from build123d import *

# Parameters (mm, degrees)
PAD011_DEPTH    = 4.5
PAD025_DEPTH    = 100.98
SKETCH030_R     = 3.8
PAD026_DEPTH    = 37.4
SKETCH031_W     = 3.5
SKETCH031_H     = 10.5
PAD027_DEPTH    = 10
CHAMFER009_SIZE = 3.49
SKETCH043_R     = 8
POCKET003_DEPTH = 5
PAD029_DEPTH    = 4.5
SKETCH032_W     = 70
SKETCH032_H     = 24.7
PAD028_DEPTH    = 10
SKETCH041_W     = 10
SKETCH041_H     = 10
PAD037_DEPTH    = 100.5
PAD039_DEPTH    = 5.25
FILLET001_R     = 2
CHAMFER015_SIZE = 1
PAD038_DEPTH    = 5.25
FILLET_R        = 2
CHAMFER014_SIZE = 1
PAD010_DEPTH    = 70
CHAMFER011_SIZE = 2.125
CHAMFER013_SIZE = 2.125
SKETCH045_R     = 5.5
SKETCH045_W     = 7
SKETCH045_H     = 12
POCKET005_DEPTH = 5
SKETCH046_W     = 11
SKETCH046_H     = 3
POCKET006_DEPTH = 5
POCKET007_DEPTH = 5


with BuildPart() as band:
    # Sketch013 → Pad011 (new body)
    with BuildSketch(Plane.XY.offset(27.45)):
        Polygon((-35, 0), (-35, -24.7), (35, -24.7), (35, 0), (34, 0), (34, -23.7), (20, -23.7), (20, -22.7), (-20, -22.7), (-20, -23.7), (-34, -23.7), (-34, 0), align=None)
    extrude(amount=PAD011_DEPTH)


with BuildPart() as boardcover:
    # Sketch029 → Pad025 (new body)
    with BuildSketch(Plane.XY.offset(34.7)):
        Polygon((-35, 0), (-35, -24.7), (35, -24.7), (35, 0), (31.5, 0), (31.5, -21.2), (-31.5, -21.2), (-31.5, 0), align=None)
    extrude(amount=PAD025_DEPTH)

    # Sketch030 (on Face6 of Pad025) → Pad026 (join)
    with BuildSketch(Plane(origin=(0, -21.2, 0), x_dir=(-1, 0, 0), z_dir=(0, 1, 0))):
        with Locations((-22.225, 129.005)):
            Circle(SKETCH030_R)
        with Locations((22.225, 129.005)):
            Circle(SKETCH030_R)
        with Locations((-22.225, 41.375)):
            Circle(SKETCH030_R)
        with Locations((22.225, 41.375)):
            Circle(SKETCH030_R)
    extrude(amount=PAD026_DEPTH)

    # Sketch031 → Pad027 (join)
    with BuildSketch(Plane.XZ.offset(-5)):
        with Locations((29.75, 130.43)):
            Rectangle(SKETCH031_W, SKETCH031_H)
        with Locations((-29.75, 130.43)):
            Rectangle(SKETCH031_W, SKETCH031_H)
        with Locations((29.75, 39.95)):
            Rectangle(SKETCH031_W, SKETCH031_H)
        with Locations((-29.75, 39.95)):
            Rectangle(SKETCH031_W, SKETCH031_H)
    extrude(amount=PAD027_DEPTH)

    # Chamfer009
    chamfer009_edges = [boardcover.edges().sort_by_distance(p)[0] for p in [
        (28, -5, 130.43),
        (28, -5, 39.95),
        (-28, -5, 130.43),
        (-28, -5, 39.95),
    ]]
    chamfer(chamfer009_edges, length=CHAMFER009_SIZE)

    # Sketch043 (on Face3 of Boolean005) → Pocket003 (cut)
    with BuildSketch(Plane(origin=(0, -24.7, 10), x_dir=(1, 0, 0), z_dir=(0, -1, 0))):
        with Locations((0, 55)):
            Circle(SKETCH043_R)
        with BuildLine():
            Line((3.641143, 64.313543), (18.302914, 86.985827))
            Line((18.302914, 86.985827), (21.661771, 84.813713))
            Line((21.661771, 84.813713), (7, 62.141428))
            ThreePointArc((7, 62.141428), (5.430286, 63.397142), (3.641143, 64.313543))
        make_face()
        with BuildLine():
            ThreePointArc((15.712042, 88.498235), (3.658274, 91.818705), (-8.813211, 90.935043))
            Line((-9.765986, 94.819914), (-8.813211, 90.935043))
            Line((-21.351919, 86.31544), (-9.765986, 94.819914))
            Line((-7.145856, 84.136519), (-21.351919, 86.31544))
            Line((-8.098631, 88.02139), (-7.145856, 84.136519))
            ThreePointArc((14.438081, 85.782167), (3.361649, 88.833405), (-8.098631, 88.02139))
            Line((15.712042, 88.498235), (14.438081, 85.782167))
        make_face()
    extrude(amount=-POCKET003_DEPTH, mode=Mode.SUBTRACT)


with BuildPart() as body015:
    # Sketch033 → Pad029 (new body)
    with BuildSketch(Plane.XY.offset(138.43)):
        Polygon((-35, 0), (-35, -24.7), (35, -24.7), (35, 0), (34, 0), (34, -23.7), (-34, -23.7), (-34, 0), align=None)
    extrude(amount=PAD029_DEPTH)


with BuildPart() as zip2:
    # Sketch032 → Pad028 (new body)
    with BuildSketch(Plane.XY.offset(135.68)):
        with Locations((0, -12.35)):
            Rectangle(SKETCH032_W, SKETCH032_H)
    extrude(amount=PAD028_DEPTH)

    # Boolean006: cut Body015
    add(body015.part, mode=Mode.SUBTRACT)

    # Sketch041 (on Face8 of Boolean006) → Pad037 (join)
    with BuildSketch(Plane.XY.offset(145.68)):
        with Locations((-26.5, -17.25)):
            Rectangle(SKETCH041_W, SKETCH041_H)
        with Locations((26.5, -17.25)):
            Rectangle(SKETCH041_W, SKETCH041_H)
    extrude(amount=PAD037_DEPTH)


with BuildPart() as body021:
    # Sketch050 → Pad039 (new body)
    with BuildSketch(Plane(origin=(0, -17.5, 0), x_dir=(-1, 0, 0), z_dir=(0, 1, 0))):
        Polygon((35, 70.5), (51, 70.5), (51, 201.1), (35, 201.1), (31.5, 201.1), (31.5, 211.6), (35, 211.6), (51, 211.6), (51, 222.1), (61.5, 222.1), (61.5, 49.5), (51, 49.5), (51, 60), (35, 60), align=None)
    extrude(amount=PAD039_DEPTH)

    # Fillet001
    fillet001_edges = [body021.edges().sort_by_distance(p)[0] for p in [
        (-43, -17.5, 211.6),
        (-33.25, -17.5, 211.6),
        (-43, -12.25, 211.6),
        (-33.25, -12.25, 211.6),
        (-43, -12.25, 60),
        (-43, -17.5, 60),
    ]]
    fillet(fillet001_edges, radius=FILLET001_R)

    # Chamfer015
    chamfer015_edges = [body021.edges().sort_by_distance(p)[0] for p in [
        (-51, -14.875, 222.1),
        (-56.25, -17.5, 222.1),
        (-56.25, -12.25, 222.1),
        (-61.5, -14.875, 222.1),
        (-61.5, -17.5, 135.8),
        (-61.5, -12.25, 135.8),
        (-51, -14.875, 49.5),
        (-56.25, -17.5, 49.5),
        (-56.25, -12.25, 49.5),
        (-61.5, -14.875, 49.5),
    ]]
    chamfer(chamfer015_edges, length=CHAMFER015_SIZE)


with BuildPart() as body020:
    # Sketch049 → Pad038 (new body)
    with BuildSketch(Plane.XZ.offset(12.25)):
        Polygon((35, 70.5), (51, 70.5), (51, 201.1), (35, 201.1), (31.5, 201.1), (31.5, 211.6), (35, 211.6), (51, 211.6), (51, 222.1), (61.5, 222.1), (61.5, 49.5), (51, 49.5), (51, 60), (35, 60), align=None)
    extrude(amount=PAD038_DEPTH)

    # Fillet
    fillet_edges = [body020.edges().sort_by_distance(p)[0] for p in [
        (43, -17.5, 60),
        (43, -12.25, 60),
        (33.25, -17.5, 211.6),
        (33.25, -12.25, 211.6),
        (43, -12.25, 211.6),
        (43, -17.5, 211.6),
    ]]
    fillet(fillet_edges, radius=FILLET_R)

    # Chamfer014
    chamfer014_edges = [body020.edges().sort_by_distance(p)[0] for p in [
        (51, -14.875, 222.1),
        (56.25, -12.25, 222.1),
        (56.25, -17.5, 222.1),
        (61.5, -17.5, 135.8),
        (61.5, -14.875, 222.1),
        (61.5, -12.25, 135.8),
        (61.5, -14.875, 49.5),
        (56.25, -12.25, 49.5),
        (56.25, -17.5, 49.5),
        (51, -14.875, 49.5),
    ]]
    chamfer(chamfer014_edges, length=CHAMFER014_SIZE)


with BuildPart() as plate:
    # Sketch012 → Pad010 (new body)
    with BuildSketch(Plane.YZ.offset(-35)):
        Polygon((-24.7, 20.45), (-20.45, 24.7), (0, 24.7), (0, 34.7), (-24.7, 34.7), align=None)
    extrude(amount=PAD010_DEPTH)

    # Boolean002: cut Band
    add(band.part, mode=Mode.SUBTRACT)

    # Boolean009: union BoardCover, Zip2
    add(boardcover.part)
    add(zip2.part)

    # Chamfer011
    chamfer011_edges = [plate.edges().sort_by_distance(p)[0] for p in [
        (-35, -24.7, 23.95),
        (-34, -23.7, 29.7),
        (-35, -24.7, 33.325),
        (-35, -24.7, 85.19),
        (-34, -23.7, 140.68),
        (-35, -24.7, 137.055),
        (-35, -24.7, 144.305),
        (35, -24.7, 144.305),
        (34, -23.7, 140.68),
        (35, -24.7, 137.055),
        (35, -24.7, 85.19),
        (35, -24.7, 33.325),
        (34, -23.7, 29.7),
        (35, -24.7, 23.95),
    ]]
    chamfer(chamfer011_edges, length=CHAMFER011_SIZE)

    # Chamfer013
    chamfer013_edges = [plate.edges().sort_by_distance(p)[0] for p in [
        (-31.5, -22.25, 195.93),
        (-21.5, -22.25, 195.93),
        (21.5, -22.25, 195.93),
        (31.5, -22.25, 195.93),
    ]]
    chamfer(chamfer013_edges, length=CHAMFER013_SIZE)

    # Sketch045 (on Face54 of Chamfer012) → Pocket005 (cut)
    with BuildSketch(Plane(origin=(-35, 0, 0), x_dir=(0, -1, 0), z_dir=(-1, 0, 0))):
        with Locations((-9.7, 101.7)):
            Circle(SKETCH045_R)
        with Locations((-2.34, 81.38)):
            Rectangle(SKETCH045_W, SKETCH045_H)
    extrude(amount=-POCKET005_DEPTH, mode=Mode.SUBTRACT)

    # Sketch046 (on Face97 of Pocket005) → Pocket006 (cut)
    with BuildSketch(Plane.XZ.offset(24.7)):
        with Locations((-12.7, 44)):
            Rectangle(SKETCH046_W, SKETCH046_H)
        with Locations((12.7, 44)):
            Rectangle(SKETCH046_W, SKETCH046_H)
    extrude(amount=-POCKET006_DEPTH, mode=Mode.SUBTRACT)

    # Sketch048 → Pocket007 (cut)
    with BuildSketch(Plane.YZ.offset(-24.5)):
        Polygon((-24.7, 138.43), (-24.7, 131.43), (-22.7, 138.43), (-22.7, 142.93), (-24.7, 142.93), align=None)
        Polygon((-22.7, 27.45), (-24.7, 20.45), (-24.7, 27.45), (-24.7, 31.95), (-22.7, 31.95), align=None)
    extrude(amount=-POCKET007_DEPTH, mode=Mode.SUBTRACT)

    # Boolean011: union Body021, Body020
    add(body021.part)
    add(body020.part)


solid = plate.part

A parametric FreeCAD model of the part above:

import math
import FreeCAD as App
import Part
import Sketcher

V = App.Vector
Q = App.Units.Quantity


def edges_at(feature, points):
    """Names of the edges that pass closest to the given points."""
    edges = feature.Shape.Edges
    near = lambda p: min(range(len(edges)), key=lambda i: edges[i].distToShape(Part.Vertex(*p))[0])
    return sorted({f"Edge{near(p) + 1}" for p in points})

doc = App.newDocument("Part")
body = doc.addObject("PartDesign::Body", "Body")

# Sketch on XY plane
sketch1 = body.newObject("Sketcher::SketchObject", "Sketch")
sketch1.AttachmentSupport = (doc.getObject("XY_Plane"), [""])
sketch1.MapMode = "FlatFace"
sketch1.AttachmentOffset = App.Placement(V(0, 0, 27.45), App.Rotation())
sketch1.addGeometry([
    Part.LineSegment(V(-35, 0, 0), V(-35, -24.7, 0)),  # 0
    Part.LineSegment(V(-35, -24.7, 0), V(35, -24.7, 0)),  # 1
    Part.LineSegment(V(35, -24.7, 0), V(35, 0, 0)),  # 2
    Part.LineSegment(V(35, 0, 0), V(34, 0, 0)),  # 3
    Part.LineSegment(V(34, 0, 0), V(34, -23.7, 0)),  # 4
    Part.LineSegment(V(34, -23.7, 0), V(20, -23.7, 0)),  # 5
    Part.LineSegment(V(20, -23.7, 0), V(20, -22.7, 0)),  # 6
    Part.LineSegment(V(20, -22.7, 0), V(-20, -22.7, 0)),  # 7
    Part.LineSegment(V(-20, -22.7, 0), V(-20, -23.7, 0)),  # 8
    Part.LineSegment(V(-20, -23.7, 0), V(-34, -23.7, 0)),  # 9
    Part.LineSegment(V(-34, -23.7, 0), V(-34, 0, 0)),  # 10
    Part.LineSegment(V(-34, 0, 0), V(-35, 0, 0)),  # 11
], False)
sketch1.addConstraint([
    Sketcher.Constraint("Coincident", 0, 2, 1, 1),
    Sketcher.Constraint("Coincident", 1, 2, 2, 1),
    Sketcher.Constraint("Coincident", 2, 2, 3, 1),
    Sketcher.Constraint("Coincident", 3, 2, 4, 1),
    Sketcher.Constraint("Coincident", 4, 2, 5, 1),
    Sketcher.Constraint("Coincident", 5, 2, 6, 1),
    Sketcher.Constraint("Coincident", 6, 2, 7, 1),
    Sketcher.Constraint("Coincident", 7, 2, 8, 1),
    Sketcher.Constraint("Coincident", 8, 2, 9, 1),
    Sketcher.Constraint("Coincident", 9, 2, 10, 1),
    Sketcher.Constraint("Coincident", 10, 2, 11, 1),
    Sketcher.Constraint("Coincident", 11, 2, 0, 1),
    Sketcher.Constraint("Vertical", 0),
    Sketcher.Constraint("Horizontal", 1),
    Sketcher.Constraint("Vertical", 2),
    Sketcher.Constraint("Horizontal", 3),
    Sketcher.Constraint("Vertical", 4),
    Sketcher.Constraint("Horizontal", 5),
    Sketcher.Constraint("Vertical", 6),
    Sketcher.Constraint("Horizontal", 7),
    Sketcher.Constraint("Vertical", 8),
    Sketcher.Constraint("Horizontal", 9),
    Sketcher.Constraint("Vertical", 10),
    Sketcher.Constraint("Horizontal", 11),
    Sketcher.Constraint("Symmetric", 3, 2, 10, 2, -1, 1),
    Sketcher.Constraint("Symmetric", 5, 2, 8, 2, -2),
    Sketcher.Constraint("Symmetric", 2, 2, 11, 2, -2),
    Sketcher.Constraint("Equal", 11, 6),
    Sketcher.Constraint("DistanceX", 1, 1, 1, 2, 70.0),
    Sketcher.Constraint("DistanceX", 3, 2, 3, 1, 1.0),
    Sketcher.Constraint("DistanceX", 5, 2, 5, 1, 14.0),
    Sketcher.Constraint("DistanceY", 0, 2, 0, 1, 24.7),
    Sketcher.Constraint("DistanceY", 4, 2, 4, 1, 23.7),
])
pad1 = body.newObject("PartDesign::Pad", "Pad")
pad1.Profile = sketch1
pad1.Length = 4.5
body2 = doc.addObject("PartDesign::Body", "Body001")

# Sketch on XY plane
sketch2 = body2.newObject("Sketcher::SketchObject", "Sketch001")
sketch2.AttachmentSupport = (doc.getObject("XY_Plane001"), [""])
sketch2.MapMode = "FlatFace"
sketch2.AttachmentOffset = App.Placement(V(0, 0, 34.7), App.Rotation())
sketch2.addGeometry([
    Part.LineSegment(V(-35, 0, 0), V(-35, -24.7, 0)),  # 0
    Part.LineSegment(V(-35, -24.7, 0), V(35, -24.7, 0)),  # 1
    Part.LineSegment(V(35, -24.7, 0), V(35, 0, 0)),  # 2
    Part.LineSegment(V(35, 0, 0), V(31.5, 0, 0)),  # 3
    Part.LineSegment(V(31.5, 0, 0), V(31.5, -21.2, 0)),  # 4
    Part.LineSegment(V(31.5, -21.2, 0), V(-31.5, -21.2, 0)),  # 5
    Part.LineSegment(V(-31.5, -21.2, 0), V(-31.5, 0, 0)),  # 6
    Part.LineSegment(V(-31.5, 0, 0), V(-35, 0, 0)),  # 7
], False)
sketch2.addConstraint([
    Sketcher.Constraint("Coincident", 0, 2, 1, 1),
    Sketcher.Constraint("Coincident", 1, 2, 2, 1),
    Sketcher.Constraint("Coincident", 2, 2, 3, 1),
    Sketcher.Constraint("Coincident", 3, 2, 4, 1),
    Sketcher.Constraint("Coincident", 4, 2, 5, 1),
    Sketcher.Constraint("Coincident", 5, 2, 6, 1),
    Sketcher.Constraint("Coincident", 6, 2, 7, 1),
    Sketcher.Constraint("Coincident", 7, 2, 0, 1),
    Sketcher.Constraint("Vertical", 0),
    Sketcher.Constraint("Horizontal", 1),
    Sketcher.Constraint("Vertical", 2),
    Sketcher.Constraint("Horizontal", 3),
    Sketcher.Constraint("Vertical", 4),
    Sketcher.Constraint("Horizontal", 5),
    Sketcher.Constraint("Vertical", 6),
    Sketcher.Constraint("Horizontal", 7),
    Sketcher.Constraint("Symmetric", 3, 2, 6, 2, -1, 1),
    Sketcher.Constraint("Symmetric", 2, 2, 7, 2, -2),
    Sketcher.Constraint("DistanceX", 1, 1, 1, 2, 70.0),
    Sketcher.Constraint("DistanceX", 5, 2, 5, 1, 63.0),
    Sketcher.Constraint("DistanceY", 0, 2, 0, 1, 24.7),
    Sketcher.Constraint("DistanceY", 4, 2, 4, 1, 21.2),
])
pad2 = body2.newObject("PartDesign::Pad", "Pad001")
pad2.Profile = sketch2
pad2.Length = 100.98

# Sketch on XZ plane
sketch3 = body2.newObject("Sketcher::SketchObject", "Sketch002")
sketch3.AttachmentSupport = (doc.getObject("XZ_Plane001"), [""])
sketch3.MapMode = "FlatFace"
sketch3.AttachmentOffset = App.Placement(V(0, 0, 21.2), App.Rotation())
sketch3.addGeometry([
    Part.Circle(V(22.2, 129, 0), V(0, 0, 1), 3.8),
    Part.Circle(V(-22.2, 129, 0), V(0, 0, 1), 3.8),
    Part.Circle(V(22.2, 41.4, 0), V(0, 0, 1), 3.8),
    Part.Circle(V(-22.2, 41.4, 0), V(0, 0, 1), 3.8),
], False)
sketch3.addConstraint([
    Sketcher.Constraint("Equal", 0, 1),
    Sketcher.Constraint("Equal", 1, 2),
    Sketcher.Constraint("Equal", 2, 3),
    Sketcher.Constraint("Symmetric", 0, 3, 1, 3, -2),
    Sketcher.Constraint("Symmetric", 2, 3, 3, 3, -2),
    Sketcher.Constraint("Vertical", 0, 3, 2, 3),
    Sketcher.Constraint("Diameter", 0, 7.6),
    Sketcher.Constraint("DistanceX", 1, 3, 0, 3, 44.45),
    Sketcher.Constraint("DistanceY", 2, 3, 0, 3, 87.63),
    Sketcher.Constraint("DistanceY", -1, 1, 0, 3, 129.005),
])
pad3 = body2.newObject("PartDesign::Pad", "Pad002")
pad3.Profile = sketch3
pad3.Length = 37.4
pad3.Reversed = True

# Sketch on XZ plane
sketch4 = body2.newObject("Sketcher::SketchObject", "Sketch003")
sketch4.AttachmentSupport = (doc.getObject("XZ_Plane001"), [""])
sketch4.MapMode = "FlatFace"
sketch4.AttachmentOffset = App.Placement(V(0, 0, -5), App.Rotation())
sketch4.addGeometry([
    Part.LineSegment(V(28, 135.7, 0), V(28, 125.2, 0)),  # 0
    Part.LineSegment(V(28, 125.2, 0), V(31.5, 125.2, 0)),  # 1
    Part.LineSegment(V(31.5, 125.2, 0), V(31.5, 135.7, 0)),  # 2
    Part.LineSegment(V(31.5, 135.7, 0), V(28, 135.7, 0)),  # 3
    Part.LineSegment(V(-31.5, 135.7, 0), V(-31.5, 125.2, 0)),  # 4
    Part.LineSegment(V(-31.5, 125.2, 0), V(-28, 125.2, 0)),  # 5
    Part.LineSegment(V(-28, 125.2, 0), V(-28, 135.7, 0)),  # 6
    Part.LineSegment(V(-28, 135.7, 0), V(-31.5, 135.7, 0)),  # 7
    Part.LineSegment(V(28, 45.2, 0), V(28, 34.7, 0)),  # 8
    Part.LineSegment(V(28, 34.7, 0), V(31.5, 34.7, 0)),  # 9
    Part.LineSegment(V(31.5, 34.7, 0), V(31.5, 45.2, 0)),  # 10
    Part.LineSegment(V(31.5, 45.2, 0), V(28, 45.2, 0)),  # 11
    Part.LineSegment(V(-31.5, 45.2, 0), V(-31.5, 34.7, 0)),  # 12
    Part.LineSegment(V(-31.5, 34.7, 0), V(-28, 34.7, 0)),  # 13
    Part.LineSegment(V(-28, 34.7, 0), V(-28, 45.2, 0)),  # 14
    Part.LineSegment(V(-28, 45.2, 0), V(-31.5, 45.2, 0)),  # 15
], False)
sketch4.addConstraint([
    Sketcher.Constraint("Coincident", 0, 2, 1, 1),
    Sketcher.Constraint("Coincident", 1, 2, 2, 1),
    Sketcher.Constraint("Coincident", 2, 2, 3, 1),
    Sketcher.Constraint("Coincident", 3, 2, 0, 1),
    Sketcher.Constraint("Coincident", 4, 2, 5, 1),
    Sketcher.Constraint("Coincident", 5, 2, 6, 1),
    Sketcher.Constraint("Coincident", 6, 2, 7, 1),
    Sketcher.Constraint("Coincident", 7, 2, 4, 1),
    Sketcher.Constraint("Coincident", 8, 2, 9, 1),
    Sketcher.Constraint("Coincident", 9, 2, 10, 1),
    Sketcher.Constraint("Coincident", 10, 2, 11, 1),
    Sketcher.Constraint("Coincident", 11, 2, 8, 1),
    Sketcher.Constraint("Coincident", 12, 2, 13, 1),
    Sketcher.Constraint("Coincident", 13, 2, 14, 1),
    Sketcher.Constraint("Coincident", 14, 2, 15, 1),
    Sketcher.Constraint("Coincident", 15, 2, 12, 1),
    Sketcher.Constraint("Vertical", 0),
    Sketcher.Constraint("Horizontal", 1),
    Sketcher.Constraint("Vertical", 2),
    Sketcher.Constraint("Horizontal", 3),
    Sketcher.Constraint("Vertical", 4),
    Sketcher.Constraint("Horizontal", 5),
    Sketcher.Constraint("Vertical", 6),
    Sketcher.Constraint("Horizontal", 7),
    Sketcher.Constraint("Vertical", 8),
    Sketcher.Constraint("Horizontal", 9),
    Sketcher.Constraint("Vertical", 10),
    Sketcher.Constraint("Horizontal", 11),
    Sketcher.Constraint("Vertical", 12),
    Sketcher.Constraint("Horizontal", 13),
    Sketcher.Constraint("Vertical", 14),
    Sketcher.Constraint("Horizontal", 15),
    Sketcher.Constraint("Symmetric", 1, 2, 4, 2, -2),
    Sketcher.Constraint("Symmetric", 3, 2, 6, 2, -2),
    Sketcher.Constraint("Symmetric", 9, 2, 12, 2, -2),
    Sketcher.Constraint("Symmetric", 11, 2, 14, 2, -2),
    Sketcher.Constraint("Vertical", 3, 2, 8, 2),
    Sketcher.Constraint("Vertical", 2, 2, 9, 2),
    Sketcher.Constraint("Equal", 6, 8),
    Sketcher.Constraint("DistanceX", 1, 1, 1, 2, 3.5),
    Sketcher.Constraint("DistanceY", 0, 2, 0, 1, 10.5),
    Sketcher.Constraint("DistanceX", -1, 1, 0, 2, 28.0),
    Sketcher.Constraint("DistanceY", -1, 1, 8, 2, 34.7),
    Sketcher.Constraint("DistanceY", -1, 1, 0, 2, 125.18),
])
pad4 = body2.newObject("PartDesign::Pad", "Pad003")
pad4.Profile = sketch4
pad4.Length = 10
doc.recompute()

chamfer = body2.newObject("PartDesign::Chamfer", "Chamfer")
chamfer.Base = (pad4, edges_at(pad4, [
    (28, -5, 130.43),
    (28, -5, 39.95),
    (-28, -5, 130.43),
    (-28, -5, 39.95),
]))
chamfer.Size = 3.49

# Sketch on XZ plane
sketch5 = body2.newObject("Sketcher::SketchObject", "Sketch004")
sketch5.AttachmentSupport = (doc.getObject("XZ_Plane001"), [""])
sketch5.MapMode = "FlatFace"
sketch5.AttachmentOffset = App.Placement(V(0, 0, 24.7), App.Rotation())
sketch5.addGeometry([
    Part.Circle(V(0, 65, 0), V(0, 0, 1), 8),  # 0
    Part.LineSegment(V(18.3, 97, 0), V(3.6, 74.3, 0)),  # 1
    Part.ArcOfCircle(Part.Circle(V(0, 65, 0), V(0, 0, 1), 10), math.radians(46), math.radians(69)),  # 2
    Part.LineSegment(V(7, 72.1, 0), V(21.7, 94.8, 0)),  # 3
    Part.LineSegment(V(21.7, 94.8, 0), V(18.3, 97, 0)),  # 4
    Part.ArcOfCircle(Part.Circle(V(0, 65, 0), V(0, 0, 1), 37), math.radians(65), math.radians(104)),  # 5
    Part.LineSegment(V(-8.8, 100.9, 0), V(-9.8, 104.8, 0)),  # 6
    Part.LineSegment(V(-9.8, 104.8, 0), V(-21.4, 96.3, 0)),  # 7
    Part.LineSegment(V(-21.4, 96.3, 0), V(-7.1, 94.1, 0)),  # 8
    Part.LineSegment(V(-7.1, 94.1, 0), V(-8.1, 98, 0)),  # 9
    Part.ArcOfCircle(Part.Circle(V(0, 65, 0), V(0, 0, 1), 34), math.radians(65), math.radians(104)),  # 10
    Part.LineSegment(V(14.4, 95.8, 0), V(15.7, 98.5, 0)),  # 11
], False)
sketch5.addConstraint([
    Sketcher.Constraint("Coincident", 1, 2, 2, 2),
    Sketcher.Constraint("Coincident", 2, 1, 3, 1),
    Sketcher.Constraint("Coincident", 3, 2, 4, 1),
    Sketcher.Constraint("Coincident", 4, 2, 1, 1),
    Sketcher.Constraint("Coincident", 5, 2, 6, 1),
    Sketcher.Constraint("Coincident", 6, 2, 7, 1),
    Sketcher.Constraint("Coincident", 7, 2, 8, 1),
    Sketcher.Constraint("Coincident", 8, 2, 9, 1),
    Sketcher.Constraint("Coincident", 9, 2, 10, 2),
    Sketcher.Constraint("Coincident", 10, 1, 11, 1),
    Sketcher.Constraint("Coincident", 11, 2, 5, 1),
    Sketcher.Constraint("Coincident", 2, 3, 0, 3),
    Sketcher.Constraint("Coincident", 5, 3, 0, 3),
    Sketcher.Constraint("Coincident", 10, 3, 0, 3),
    Sketcher.Constraint("PointOnObject", 0, 3, -2),
    Sketcher.Constraint("Parallel", 1, 3),
    Sketcher.Constraint("Perpendicular", 3, 4),
    Sketcher.Constraint("Parallel", 6, 9),
    Sketcher.Constraint("Equal", 1, 3),
    Sketcher.Constraint("Equal", 4, 6),
    Sketcher.Constraint("Equal", 7, 8),
    Sketcher.Constraint("Equal", 6, 9),
    Sketcher.Constraint("Diameter", 0, 16.0),
    Sketcher.Constraint("Radius", 2, 10.0),
    Sketcher.Constraint("Radius", 5, 37.0),
    Sketcher.Constraint("Distance", 1, 27.0),
    Sketcher.Constraint("Distance", 4, 4.0),
    Sketcher.Constraint("Distance", 11, 3.0),
    Sketcher.Constraint("DistanceY", -1, 1, 0, 3, 65.0),
    Sketcher.Constraint("DistanceX", -1, 1, 2, 1, 7.0),
    Sketcher.Constraint("DistanceX", 8, 2, 1, 2, 10.786999),
    Sketcher.Constraint("DistanceY", 1, 2, 5, 2, 26.6215),
    Sketcher.Constraint("DistanceX", 6, 2, 4, 2, 28.0689),
    Sketcher.Constraint("DistanceX", 7, 2, -1, 1, 21.351919),
    Sketcher.Constraint("DistanceX", -1, 1, 10, 1, 14.438081),
    Sketcher.Constraint("DistanceX", 10, 1, 11, 2, 1.273961),
])
pocket1 = body2.newObject("PartDesign::Pocket", "Pocket")
pocket1.Profile = sketch5
pocket1.Length = 5
body3 = doc.addObject("PartDesign::Body", "Body002")

# Sketch on XY plane
sketch6 = body3.newObject("Sketcher::SketchObject", "Sketch005")
sketch6.AttachmentSupport = (doc.getObject("XY_Plane002"), [""])
sketch6.MapMode = "FlatFace"
sketch6.AttachmentOffset = App.Placement(V(0, 0, 138.43), App.Rotation())
sketch6.addGeometry([
    Part.LineSegment(V(-35, 0, 0), V(-35, -24.7, 0)),  # 0
    Part.LineSegment(V(-35, -24.7, 0), V(35, -24.7, 0)),  # 1
    Part.LineSegment(V(35, -24.7, 0), V(35, 0, 0)),  # 2
    Part.LineSegment(V(35, 0, 0), V(34, 0, 0)),  # 3
    Part.LineSegment(V(34, 0, 0), V(34, -23.7, 0)),  # 4
    Part.LineSegment(V(34, -23.7, 0), V(-34, -23.7, 0)),  # 5
    Part.LineSegment(V(-34, -23.7, 0), V(-34, 0, 0)),  # 6
    Part.LineSegment(V(-34, 0, 0), V(-35, 0, 0)),  # 7
], False)
sketch6.addConstraint([
    Sketcher.Constraint("Coincident", 0, 2, 1, 1),
    Sketcher.Constraint("Coincident", 1, 2, 2, 1),
    Sketcher.Constraint("Coincident", 2, 2, 3, 1),
    Sketcher.Constraint("Coincident", 3, 2, 4, 1),
    Sketcher.Constraint("Coincident", 4, 2, 5, 1),
    Sketcher.Constraint("Coincident", 5, 2, 6, 1),
    Sketcher.Constraint("Coincident", 6, 2, 7, 1),
    Sketcher.Constraint("Coincident", 7, 2, 0, 1),
    Sketcher.Constraint("Vertical", 0),
    Sketcher.Constraint("Horizontal", 1),
    Sketcher.Constraint("Vertical", 2),
    Sketcher.Constraint("Horizontal", 3),
    Sketcher.Constraint("Vertical", 4),
    Sketcher.Constraint("Horizontal", 5),
    Sketcher.Constraint("Vertical", 6),
    Sketcher.Constraint("Horizontal", 7),
    Sketcher.Constraint("Symmetric", 3, 2, 6, 2, -1, 1),
    Sketcher.Constraint("Symmetric", 2, 2, 7, 2, -2),
    Sketcher.Constraint("DistanceX", 1, 1, 1, 2, 70.0),
    Sketcher.Constraint("DistanceX", 3, 2, 3, 1, 1.0),
    Sketcher.Constraint("DistanceY", 0, 2, 0, 1, 24.7),
    Sketcher.Constraint("DistanceY", 4, 2, 4, 1, 23.7),
])
pad5 = body3.newObject("PartDesign::Pad", "Pad004")
pad5.Profile = sketch6
pad5.Length = 4.5
body4 = doc.addObject("PartDesign::Body", "Body003")

# Sketch on XY plane
sketch7 = body4.newObject("Sketcher::SketchObject", "Sketch006")
sketch7.AttachmentSupport = (doc.getObject("XY_Plane003"), [""])
sketch7.MapMode = "FlatFace"
sketch7.AttachmentOffset = App.Placement(V(0, 0, 135.68), App.Rotation())
sketch7.addGeometry([
    Part.LineSegment(V(-35, 0, 0), V(-35, -25, 0)),
    Part.LineSegment(V(-35, -25, 0), V(35, -25, 0)),
    Part.LineSegment(V(35, -25, 0), V(35, 0, 0)),
    Part.LineSegment(V(35, 0, 0), V(-35, 0, 0)),
], False)
sketch7.addConstraint([
    Sketcher.Constraint("Coincident", 0, 2, 1, 1),
    Sketcher.Constraint("Coincident", 1, 2, 2, 1),
    Sketcher.Constraint("Coincident", 2, 2, 3, 1),
    Sketcher.Constraint("Coincident", 3, 2, 0, 1),
    Sketcher.Constraint("Vertical", 0),
    Sketcher.Constraint("Horizontal", 1),
    Sketcher.Constraint("Vertical", 2),
    Sketcher.Constraint("Horizontal", 3),
    Sketcher.Constraint("Symmetric", 2, 2, 3, 2, -1, 1),
    Sketcher.Constraint("DistanceX", 1, 1, 1, 2, 70.0),
    Sketcher.Constraint("DistanceY", 0, 2, 0, 1, 24.7),
])
pad6 = body4.newObject("PartDesign::Pad", "Pad005")
pad6.Profile = sketch7
pad6.Length = 10
doc.recompute()

boolean = body4.newObject("PartDesign::Boolean", "Boolean")
boolean.Type = "Cut"
boolean.addObjects([body3])

# Sketch on XY plane
sketch8 = body4.newObject("Sketcher::SketchObject", "Sketch007")
sketch8.AttachmentSupport = (doc.getObject("XY_Plane003"), [""])
sketch8.MapMode = "FlatFace"
sketch8.AttachmentOffset = App.Placement(V(0, 0, 145.68), App.Rotation())
sketch8.addGeometry([
    Part.LineSegment(V(-32, -12, 0), V(-32, -22, 0)),  # 0
    Part.LineSegment(V(-32, -22, 0), V(-22, -22, 0)),  # 1
    Part.LineSegment(V(-22, -22, 0), V(-22, -12, 0)),  # 2
    Part.LineSegment(V(-22, -12, 0), V(-32, -12, 0)),  # 3
    Part.LineSegment(V(22, -12, 0), V(22, -22, 0)),  # 4
    Part.LineSegment(V(22, -22, 0), V(32, -22, 0)),  # 5
    Part.LineSegment(V(32, -22, 0), V(32, -12, 0)),  # 6
    Part.LineSegment(V(32, -12, 0), V(22, -12, 0)),  # 7
], False)
sketch8.addConstraint([
    Sketcher.Constraint("Coincident", 0, 2, 1, 1),
    Sketcher.Constraint("Coincident", 1, 2, 2, 1),
    Sketcher.Constraint("Coincident", 2, 2, 3, 1),
    Sketcher.Constraint("Coincident", 3, 2, 0, 1),
    Sketcher.Constraint("Coincident", 4, 2, 5, 1),
    Sketcher.Constraint("Coincident", 5, 2, 6, 1),
    Sketcher.Constraint("Coincident", 6, 2, 7, 1),
    Sketcher.Constraint("Coincident", 7, 2, 4, 1),
    Sketcher.Constraint("Vertical", 0),
    Sketcher.Constraint("Horizontal", 1),
    Sketcher.Constraint("Vertical", 2),
    Sketcher.Constraint("Horizontal", 3),
    Sketcher.Constraint("Vertical", 4),
    Sketcher.Constraint("Horizontal", 5),
    Sketcher.Constraint("Vertical", 6),
    Sketcher.Constraint("Horizontal", 7),
    Sketcher.Constraint("Symmetric", 1, 2, 4, 2, -2),
    Sketcher.Constraint("Symmetric", 3, 2, 6, 2, -2),
    Sketcher.Constraint("Equal", 7, 0),
    Sketcher.Constraint("DistanceX", 1, 1, 1, 2, 10.0),
    Sketcher.Constraint("DistanceX", 1, 2, 4, 2, 43.0),
    Sketcher.Constraint("DistanceY", 0, 2, -1, 1, 22.25),
])
pad7 = body4.newObject("PartDesign::Pad", "Pad006")
pad7.Profile = sketch8
pad7.Length = 100.5
body5 = doc.addObject("PartDesign::Body", "Body004")

# Sketch on XZ plane
sketch9 = body5.newObject("Sketcher::SketchObject", "Sketch008")
sketch9.AttachmentSupport = (doc.getObject("XZ_Plane004"), [""])
sketch9.MapMode = "FlatFace"
sketch9.AttachmentOffset = App.Placement(V(0, 0, 17.5), App.Rotation())
sketch9.addGeometry([
    Part.LineSegment(V(-51, 70, 0), V(-35, 70, 0)),  # 0
    Part.LineSegment(V(-35, 70, 0), V(-35, 60, 0)),  # 1
    Part.LineSegment(V(-35, 60, 0), V(-51, 60, 0)),  # 2
    Part.LineSegment(V(-51, 60, 0), V(-51, 50, 0)),  # 3
    Part.LineSegment(V(-51, 50, 0), V(-62, 50, 0)),  # 4
    Part.LineSegment(V(-62, 50, 0), V(-62, 222, 0)),  # 5
    Part.LineSegment(V(-62, 222, 0), V(-51, 222, 0)),  # 6
    Part.LineSegment(V(-51, 222, 0), V(-51, 212, 0)),  # 7
    Part.LineSegment(V(-51, 212, 0), V(-32, 212, 0)),  # 8
    Part.LineSegment(V(-32, 212, 0), V(-32, 201, 0)),  # 9
    Part.LineSegment(V(-32, 201, 0), V(-51, 201, 0)),  # 10
    Part.LineSegment(V(-51, 201, 0), V(-51, 70, 0)),  # 11
], False)
sketch9.addConstraint([
    Sketcher.Constraint("Coincident", 0, 2, 1, 1),
    Sketcher.Constraint("Coincident", 1, 2, 2, 1),
    Sketcher.Constraint("Coincident", 2, 2, 3, 1),
    Sketcher.Constraint("Coincident", 3, 2, 4, 1),
    Sketcher.Constraint("Coincident", 4, 2, 5, 1),
    Sketcher.Constraint("Coincident", 5, 2, 6, 1),
    Sketcher.Constraint("Coincident", 6, 2, 7, 1),
    Sketcher.Constraint("Coincident", 7, 2, 8, 1),
    Sketcher.Constraint("Coincident", 8, 2, 9, 1),
    Sketcher.Constraint("Coincident", 9, 2, 10, 1),
    Sketcher.Constraint("Coincident", 10, 2, 11, 1),
    Sketcher.Constraint("Coincident", 11, 2, 0, 1),
    Sketcher.Constraint("Horizontal", 0),
    Sketcher.Constraint("Vertical", 1),
    Sketcher.Constraint("Horizontal", 2),
    Sketcher.Constraint("Vertical", 3),
    Sketcher.Constraint("Horizontal", 4),
    Sketcher.Constraint("Vertical", 5),
    Sketcher.Constraint("Horizontal", 6),
    Sketcher.Constraint("Vertical", 7),
    Sketcher.Constraint("Horizontal", 8),
    Sketcher.Constraint("Vertical", 9),
    Sketcher.Constraint("Horizontal", 10),
    Sketcher.Constraint("Vertical", 11),
    Sketcher.Constraint("Vertical", 3, 2, 6, 2),
    Sketcher.Constraint("Vertical", 7, 2, 10, 2),
    Sketcher.Constraint("Equal", 6, 1),
    Sketcher.Constraint("Equal", 1, 3),
    Sketcher.Constraint("Equal", 3, 7),
    Sketcher.Constraint("Equal", 7, 9),
    Sketcher.Constraint("DistanceX", 0, 1, 0, 2, 16.0),
    Sketcher.Constraint("DistanceX", 4, 2, 4, 1, 10.5),
    Sketcher.Constraint("DistanceX", 8, 1, 8, 2, 19.5),
    Sketcher.Constraint("DistanceY", 5, 1, 5, 2, 172.6),
    Sketcher.Constraint("DistanceX", 0, 2, -1, 1, 35.0),
    Sketcher.Constraint("DistanceY", -1, 1, 1, 2, 60.0),
])
pad8 = body5.newObject("PartDesign::Pad", "Pad007")
pad8.Profile = sketch9
pad8.Length = 5.25
pad8.Reversed = True
doc.recompute()

fillet = body5.newObject("PartDesign::Fillet", "Fillet")
fillet.Base = (pad8, edges_at(pad8, [
    (-41.25, -17.5, 211.6),
    (-41.25, -17.5, 211.6),
    (-41.25, -12.25, 211.6),
    (-41.25, -12.25, 211.6),
    (-43, -12.25, 60),
    (-43, -17.5, 60),
]))
fillet.Radius = 2
doc.recompute()

chamfer2 = body5.newObject("PartDesign::Chamfer", "Chamfer001")
chamfer2.Base = (fillet, edges_at(fillet, [
    (-51, -14.875, 222.1),
    (-56.25, -17.5, 222.1),
    (-56.25, -12.25, 222.1),
    (-61.5, -14.875, 222.1),
    (-61.5, -17.5, 135.8),
    (-61.5, -12.25, 135.8),
    (-51, -14.875, 49.5),
    (-56.25, -17.5, 49.5),
    (-56.25, -12.25, 49.5),
    (-61.5, -14.875, 49.5),
]))
chamfer2.Size = 1
body6 = doc.addObject("PartDesign::Body", "Body005")

# Sketch on XZ plane
sketch10 = body6.newObject("Sketcher::SketchObject", "Sketch009")
sketch10.AttachmentSupport = (doc.getObject("XZ_Plane005"), [""])
sketch10.MapMode = "FlatFace"
sketch10.AttachmentOffset = App.Placement(V(0, 0, 12.25), App.Rotation())
sketch10.addGeometry([
    Part.LineSegment(V(51, 70, 0), V(35, 70, 0)),  # 0
    Part.LineSegment(V(35, 70, 0), V(35, 60, 0)),  # 1
    Part.LineSegment(V(35, 60, 0), V(51, 60, 0)),  # 2
    Part.LineSegment(V(51, 60, 0), V(51, 50, 0)),  # 3
    Part.LineSegment(V(51, 50, 0), V(62, 50, 0)),  # 4
    Part.LineSegment(V(62, 50, 0), V(62, 222, 0)),  # 5
    Part.LineSegment(V(62, 222, 0), V(51, 222, 0)),  # 6
    Part.LineSegment(V(51, 222, 0), V(51, 212, 0)),  # 7
    Part.LineSegment(V(51, 212, 0), V(32, 212, 0)),  # 8
    Part.LineSegment(V(32, 212, 0), V(32, 201, 0)),  # 9
    Part.LineSegment(V(32, 201, 0), V(51, 201, 0)),  # 10
    Part.LineSegment(V(51, 201, 0), V(51, 70, 0)),  # 11
], False)
sketch10.addConstraint([
    Sketcher.Constraint("Coincident", 0, 2, 1, 1),
    Sketcher.Constraint("Coincident", 1, 2, 2, 1),
    Sketcher.Constraint("Coincident", 2, 2, 3, 1),
    Sketcher.Constraint("Coincident", 3, 2, 4, 1),
    Sketcher.Constraint("Coincident", 4, 2, 5, 1),
    Sketcher.Constraint("Coincident", 5, 2, 6, 1),
    Sketcher.Constraint("Coincident", 6, 2, 7, 1),
    Sketcher.Constraint("Coincident", 7, 2, 8, 1),
    Sketcher.Constraint("Coincident", 8, 2, 9, 1),
    Sketcher.Constraint("Coincident", 9, 2, 10, 1),
    Sketcher.Constraint("Coincident", 10, 2, 11, 1),
    Sketcher.Constraint("Coincident", 11, 2, 0, 1),
    Sketcher.Constraint("Horizontal", 0),
    Sketcher.Constraint("Vertical", 1),
    Sketcher.Constraint("Horizontal", 2),
    Sketcher.Constraint("Vertical", 3),
    Sketcher.Constraint("Horizontal", 4),
    Sketcher.Constraint("Vertical", 5),
    Sketcher.Constraint("Horizontal", 6),
    Sketcher.Constraint("Vertical", 7),
    Sketcher.Constraint("Horizontal", 8),
    Sketcher.Constraint("Vertical", 9),
    Sketcher.Constraint("Horizontal", 10),
    Sketcher.Constraint("Vertical", 11),
    Sketcher.Constraint("Vertical", 3, 2, 6, 2),
    Sketcher.Constraint("Vertical", 7, 2, 10, 2),
    Sketcher.Constraint("Equal", 6, 1),
    Sketcher.Constraint("Equal", 1, 3),
    Sketcher.Constraint("Equal", 3, 7),
    Sketcher.Constraint("Equal", 7, 9),
    Sketcher.Constraint("DistanceX", 0, 2, 0, 1, 16.0),
    Sketcher.Constraint("DistanceX", 4, 1, 4, 2, 10.5),
    Sketcher.Constraint("DistanceX", 8, 2, 8, 1, 19.5),
    Sketcher.Constraint("DistanceY", 5, 1, 5, 2, 172.6),
    Sketcher.Constraint("DistanceX", -1, 1, 0, 2, 35.0),
    Sketcher.Constraint("DistanceY", -1, 1, 1, 2, 60.0),
])
pad9 = body6.newObject("PartDesign::Pad", "Pad008")
pad9.Profile = sketch10
pad9.Length = 5.25
doc.recompute()

fillet2 = body6.newObject("PartDesign::Fillet", "Fillet001")
fillet2.Base = (pad9, edges_at(pad9, [
    (43, -17.5, 60),
    (43, -12.25, 60),
    (41.25, -17.5, 211.6),
    (41.25, -12.25, 211.6),
    (41.25, -12.25, 211.6),
    (41.25, -17.5, 211.6),
]))
fillet2.Radius = 2
doc.recompute()

chamfer3 = body6.newObject("PartDesign::Chamfer", "Chamfer002")
chamfer3.Base = (fillet2, edges_at(fillet2, [
    (51, -14.875, 222.1),
    (56.25, -12.25, 222.1),
    (56.25, -17.5, 222.1),
    (61.5, -17.5, 135.8),
    (61.5, -14.875, 222.1),
    (61.5, -12.25, 135.8),
    (61.5, -14.875, 49.5),
    (56.25, -12.25, 49.5),
    (56.25, -17.5, 49.5),
    (51, -14.875, 49.5),
]))
chamfer3.Size = 1
body7 = doc.addObject("PartDesign::Body", "Body006")

# Sketch on YZ plane
sketch11 = body7.newObject("Sketcher::SketchObject", "Sketch010")
sketch11.AttachmentSupport = (doc.getObject("YZ_Plane006"), [""])
sketch11.MapMode = "FlatFace"
sketch11.AttachmentOffset = App.Placement(V(0, 0, -35), App.Rotation())
sketch11.addGeometry([
    Part.LineSegment(V(-25, 20, 0), V(-20, 25, 0)),  # 0
    Part.LineSegment(V(-20, 25, 0), V(0, 25, 0)),  # 1
    Part.LineSegment(V(0, 25, 0), V(0, 35, 0)),  # 2
    Part.LineSegment(V(0, 35, 0), V(-25, 35, 0)),  # 3
    Part.LineSegment(V(-25, 35, 0), V(-25, 20, 0)),  # 4
], False)
sketch11.addConstraint([
    Sketcher.Constraint("Coincident", 0, 2, 1, 1),
    Sketcher.Constraint("Coincident", 1, 2, 2, 1),
    Sketcher.Constraint("Coincident", 2, 2, 3, 1),
    Sketcher.Constraint("Coincident", 3, 2, 4, 1),
    Sketcher.Constraint("Coincident", 4, 2, 0, 1),
    Sketcher.Constraint("Horizontal", 1),
    Sketcher.Constraint("Vertical", 2),
    Sketcher.Constraint("Horizontal", 3),
    Sketcher.Constraint("Vertical", 4),
    Sketcher.Constraint("PointOnObject", 1, 2, -2),
    Sketcher.Constraint("DistanceY", 2, 1, 2, 2, 10.0),
    Sketcher.Constraint("Angle", 0, Q("45 deg")),
    Sketcher.Constraint("DistanceX", 3, 2, 3, 1, 24.7),
    Sketcher.Constraint("DistanceX", 1, 1, 1, 2, 20.45),
    Sketcher.Constraint("DistanceY", -1, 1, 0, 2, 24.7),
])
pad10 = body7.newObject("PartDesign::Pad", "Pad009")
pad10.Profile = sketch11
pad10.Length = 70
doc.recompute()

boolean2 = body7.newObject("PartDesign::Boolean", "Boolean001")
boolean2.Type = "Cut"
boolean2.addObjects([body])
doc.recompute()

boolean3 = body7.newObject("PartDesign::Boolean", "Boolean002")
boolean3.Type = "Fuse"
boolean3.addObjects([body2])
doc.recompute()

boolean4 = body7.newObject("PartDesign::Boolean", "Boolean003")
boolean4.Type = "Fuse"
boolean4.addObjects([body4])
doc.recompute()

chamfer4 = body7.newObject("PartDesign::Chamfer", "Chamfer003")
chamfer4.Base = (boolean4, edges_at(boolean4, [
    (-35, -24.7, 23.95),
    (-34, -23.7, 29.7),
    (-35, -24.7, 85.19),
    (-35, -24.7, 85.19),
    (-34, -23.7, 140.68),
    (-35, -24.7, 85.19),
    (-35, -24.7, 144.305),
    (35, -24.7, 144.305),
    (34, -23.7, 140.68),
    (35, -24.7, 85.19),
    (35, -24.7, 85.19),
    (35, -24.7, 85.19),
    (34, -23.7, 29.7),
    (35, -24.7, 23.95),
]))
chamfer4.Size = 2.125
doc.recompute()

chamfer5 = body7.newObject("PartDesign::Chamfer", "Chamfer004")
chamfer5.Base = (chamfer4, edges_at(chamfer4, [
    (-31.5, -22.25, 195.93),
    (-21.5, -22.25, 195.93),
    (21.5, -22.25, 195.93),
    (31.5, -22.25, 195.93),
]))
chamfer5.Size = 2.125

# Sketch on YZ plane
sketch12 = body7.newObject("Sketcher::SketchObject", "Sketch011")
sketch12.AttachmentSupport = (doc.getObject("YZ_Plane006"), [""])
sketch12.MapMode = "FlatFace"
sketch12.AttachmentOffset = App.Placement(V(0, 0, -35), App.Rotation())
sketch12.addGeometry([
    Part.Circle(V(10, 102, 0), V(0, 0, 1), 6),  # 0
    Part.LineSegment(V(6, 87, 0), V(6, 75, 0)),  # 1
    Part.LineSegment(V(6, 75, 0), V(-1, 75, 0)),  # 2
    Part.LineSegment(V(-1, 75, 0), V(-1, 87, 0)),  # 3
    Part.LineSegment(V(-1, 87, 0), V(6, 87, 0)),  # 4
], False)
sketch12.addConstraint([
    Sketcher.Constraint("Coincident", 1, 2, 2, 1),
    Sketcher.Constraint("Coincident", 2, 2, 3, 1),
    Sketcher.Constraint("Coincident", 3, 2, 4, 1),
    Sketcher.Constraint("Coincident", 4, 2, 1, 1),
    Sketcher.Constraint("Vertical", 1),
    Sketcher.Constraint("Horizontal", 2),
    Sketcher.Constraint("Vertical", 3),
    Sketcher.Constraint("Horizontal", 4),
    Sketcher.Constraint("Diameter", 0, 11.0),
    Sketcher.Constraint("DistanceX", 2, 2, 2, 1, 7.0),
    Sketcher.Constraint("DistanceY", 1, 2, 1, 1, 12.0),
    Sketcher.Constraint("DistanceX", -1, 1, 0, 3, 9.7),
    Sketcher.Constraint("DistanceY", -1, 1, 0, 3, 101.7),
    Sketcher.Constraint("DistanceX", -1, 1, 1, 2, 5.84),
    Sketcher.Constraint("DistanceY", -1, 1, 1, 2, 75.38),
])
pocket2 = body7.newObject("PartDesign::Pocket", "Pocket001")
pocket2.Profile = sketch12
pocket2.Length = 5
pocket2.Reversed = True

# Sketch on XZ plane
sketch13 = body7.newObject("Sketcher::SketchObject", "Sketch012")
sketch13.AttachmentSupport = (doc.getObject("XZ_Plane006"), [""])
sketch13.MapMode = "FlatFace"
sketch13.AttachmentOffset = App.Placement(V(0, 0, 24.7), App.Rotation())
sketch13.addGeometry([
    Part.LineSegment(V(-18.2, 45.5, 0), V(-18.2, 42.5, 0)),  # 0
    Part.LineSegment(V(-18.2, 42.5, 0), V(-7.2, 42.5, 0)),  # 1
    Part.LineSegment(V(-7.2, 42.5, 0), V(-7.2, 45.5, 0)),  # 2
    Part.LineSegment(V(-7.2, 45.5, 0), V(-18.2, 45.5, 0)),  # 3
    Part.LineSegment(V(7.2, 45.5, 0), V(7.2, 42.5, 0)),  # 4
    Part.LineSegment(V(7.2, 42.5, 0), V(18.2, 42.5, 0)),  # 5
    Part.LineSegment(V(18.2, 42.5, 0), V(18.2, 45.5, 0)),  # 6
    Part.LineSegment(V(18.2, 45.5, 0), V(7.2, 45.5, 0)),  # 7
], False)
sketch13.addConstraint([
    Sketcher.Constraint("Coincident", 0, 2, 1, 1),
    Sketcher.Constraint("Coincident", 1, 2, 2, 1),
    Sketcher.Constraint("Coincident", 2, 2, 3, 1),
    Sketcher.Constraint("Coincident", 3, 2, 0, 1),
    Sketcher.Constraint("Coincident", 4, 2, 5, 1),
    Sketcher.Constraint("Coincident", 5, 2, 6, 1),
    Sketcher.Constraint("Coincident", 6, 2, 7, 1),
    Sketcher.Constraint("Coincident", 7, 2, 4, 1),
    Sketcher.Constraint("Vertical", 0),
    Sketcher.Constraint("Horizontal", 1),
    Sketcher.Constraint("Vertical", 2),
    Sketcher.Constraint("Horizontal", 3),
    Sketcher.Constraint("Vertical", 4),
    Sketcher.Constraint("Horizontal", 5),
    Sketcher.Constraint("Vertical", 6),
    Sketcher.Constraint("Horizontal", 7),
    Sketcher.Constraint("Symmetric", 1, 2, 4, 2, -2),
    Sketcher.Constraint("Symmetric", 3, 2, 6, 2, -2),
    Sketcher.Constraint("DistanceX", 1, 1, 1, 2, 11.0),
    Sketcher.Constraint("DistanceY", 0, 2, 0, 1, 3.0),
    Sketcher.Constraint("DistanceX", 0, 2, -1, 1, 18.2),
    Sketcher.Constraint("DistanceY", -1, 1, 0, 2, 42.5),
])
pocket3 = body7.newObject("PartDesign::Pocket", "Pocket002")
pocket3.Profile = sketch13
pocket3.Length = 5

# Sketch on YZ plane
sketch14 = body7.newObject("Sketcher::SketchObject", "Sketch013")
sketch14.AttachmentSupport = (doc.getObject("YZ_Plane006"), [""])
sketch14.MapMode = "FlatFace"
sketch14.AttachmentOffset = App.Placement(V(0, 0, -24.5), App.Rotation())
sketch14.addGeometry([
    Part.LineSegment(V(-24.7, 131.4, 0), V(-22.7, 138.4, 0)),  # 0
    Part.LineSegment(V(-22.7, 138.4, 0), V(-22.7, 142.9, 0)),  # 1
    Part.LineSegment(V(-22.7, 142.9, 0), V(-24.7, 142.9, 0)),  # 2
    Part.LineSegment(V(-24.7, 142.9, 0), V(-24.7, 131.4, 0)),  # 3
    Part.LineSegment(V(-24.7, 20.4, 0), V(-22.7, 27.4, 0)),  # 4
    Part.LineSegment(V(-22.7, 27.4, 0), V(-22.7, 31.9, 0)),  # 5
    Part.LineSegment(V(-22.7, 31.9, 0), V(-24.7, 31.9, 0)),  # 6
    Part.LineSegment(V(-24.7, 31.9, 0), V(-24.7, 20.4, 0)),  # 7
], False)
sketch14.addConstraint([
    Sketcher.Constraint("Coincident", 0, 2, 1, 1),
    Sketcher.Constraint("Coincident", 1, 2, 2, 1),
    Sketcher.Constraint("Coincident", 2, 2, 3, 1),
    Sketcher.Constraint("Coincident", 3, 2, 0, 1),
    Sketcher.Constraint("Coincident", 4, 2, 5, 1),
    Sketcher.Constraint("Coincident", 5, 2, 6, 1),
    Sketcher.Constraint("Coincident", 6, 2, 7, 1),
    Sketcher.Constraint("Coincident", 7, 2, 4, 1),
    Sketcher.Constraint("Vertical", 1),
    Sketcher.Constraint("Horizontal", 2),
    Sketcher.Constraint("Vertical", 3),
    Sketcher.Constraint("Vertical", 5),
    Sketcher.Constraint("Horizontal", 6),
    Sketcher.Constraint("Vertical", 7),
    Sketcher.Constraint("Parallel", 0, 4),
    Sketcher.Constraint("Vertical", 1, 2, 4, 2),
    Sketcher.Constraint("Vertical", 3, 2, 6, 2),
    Sketcher.Constraint("Equal", 1, 5),
    Sketcher.Constraint("DistanceX", 2, 2, 2, 1, 2.0),
    Sketcher.Constraint("DistanceY", 1, 1, 1, 2, 4.5),
    Sketcher.Constraint("DistanceY", 3, 2, 3, 1, 11.5),
    Sketcher.Constraint("DistanceX", 0, 2, -1, 1, 22.7),
    Sketcher.Constraint("DistanceY", -1, 1, 0, 2, 138.43),
    Sketcher.Constraint("DistanceY", -1, 1, 4, 2, 27.45),
])
pocket4 = body7.newObject("PartDesign::Pocket", "Pocket003")
pocket4.Profile = sketch14
pocket4.Length = 5
doc.recompute()

boolean5 = body7.newObject("PartDesign::Boolean", "Boolean004")
boolean5.Type = "Fuse"
boolean5.addObjects([body5])
doc.recompute()

boolean6 = body7.newObject("PartDesign::Boolean", "Boolean005")
boolean6.Type = "Fuse"
boolean6.addObjects([body6])

doc.recompute()
